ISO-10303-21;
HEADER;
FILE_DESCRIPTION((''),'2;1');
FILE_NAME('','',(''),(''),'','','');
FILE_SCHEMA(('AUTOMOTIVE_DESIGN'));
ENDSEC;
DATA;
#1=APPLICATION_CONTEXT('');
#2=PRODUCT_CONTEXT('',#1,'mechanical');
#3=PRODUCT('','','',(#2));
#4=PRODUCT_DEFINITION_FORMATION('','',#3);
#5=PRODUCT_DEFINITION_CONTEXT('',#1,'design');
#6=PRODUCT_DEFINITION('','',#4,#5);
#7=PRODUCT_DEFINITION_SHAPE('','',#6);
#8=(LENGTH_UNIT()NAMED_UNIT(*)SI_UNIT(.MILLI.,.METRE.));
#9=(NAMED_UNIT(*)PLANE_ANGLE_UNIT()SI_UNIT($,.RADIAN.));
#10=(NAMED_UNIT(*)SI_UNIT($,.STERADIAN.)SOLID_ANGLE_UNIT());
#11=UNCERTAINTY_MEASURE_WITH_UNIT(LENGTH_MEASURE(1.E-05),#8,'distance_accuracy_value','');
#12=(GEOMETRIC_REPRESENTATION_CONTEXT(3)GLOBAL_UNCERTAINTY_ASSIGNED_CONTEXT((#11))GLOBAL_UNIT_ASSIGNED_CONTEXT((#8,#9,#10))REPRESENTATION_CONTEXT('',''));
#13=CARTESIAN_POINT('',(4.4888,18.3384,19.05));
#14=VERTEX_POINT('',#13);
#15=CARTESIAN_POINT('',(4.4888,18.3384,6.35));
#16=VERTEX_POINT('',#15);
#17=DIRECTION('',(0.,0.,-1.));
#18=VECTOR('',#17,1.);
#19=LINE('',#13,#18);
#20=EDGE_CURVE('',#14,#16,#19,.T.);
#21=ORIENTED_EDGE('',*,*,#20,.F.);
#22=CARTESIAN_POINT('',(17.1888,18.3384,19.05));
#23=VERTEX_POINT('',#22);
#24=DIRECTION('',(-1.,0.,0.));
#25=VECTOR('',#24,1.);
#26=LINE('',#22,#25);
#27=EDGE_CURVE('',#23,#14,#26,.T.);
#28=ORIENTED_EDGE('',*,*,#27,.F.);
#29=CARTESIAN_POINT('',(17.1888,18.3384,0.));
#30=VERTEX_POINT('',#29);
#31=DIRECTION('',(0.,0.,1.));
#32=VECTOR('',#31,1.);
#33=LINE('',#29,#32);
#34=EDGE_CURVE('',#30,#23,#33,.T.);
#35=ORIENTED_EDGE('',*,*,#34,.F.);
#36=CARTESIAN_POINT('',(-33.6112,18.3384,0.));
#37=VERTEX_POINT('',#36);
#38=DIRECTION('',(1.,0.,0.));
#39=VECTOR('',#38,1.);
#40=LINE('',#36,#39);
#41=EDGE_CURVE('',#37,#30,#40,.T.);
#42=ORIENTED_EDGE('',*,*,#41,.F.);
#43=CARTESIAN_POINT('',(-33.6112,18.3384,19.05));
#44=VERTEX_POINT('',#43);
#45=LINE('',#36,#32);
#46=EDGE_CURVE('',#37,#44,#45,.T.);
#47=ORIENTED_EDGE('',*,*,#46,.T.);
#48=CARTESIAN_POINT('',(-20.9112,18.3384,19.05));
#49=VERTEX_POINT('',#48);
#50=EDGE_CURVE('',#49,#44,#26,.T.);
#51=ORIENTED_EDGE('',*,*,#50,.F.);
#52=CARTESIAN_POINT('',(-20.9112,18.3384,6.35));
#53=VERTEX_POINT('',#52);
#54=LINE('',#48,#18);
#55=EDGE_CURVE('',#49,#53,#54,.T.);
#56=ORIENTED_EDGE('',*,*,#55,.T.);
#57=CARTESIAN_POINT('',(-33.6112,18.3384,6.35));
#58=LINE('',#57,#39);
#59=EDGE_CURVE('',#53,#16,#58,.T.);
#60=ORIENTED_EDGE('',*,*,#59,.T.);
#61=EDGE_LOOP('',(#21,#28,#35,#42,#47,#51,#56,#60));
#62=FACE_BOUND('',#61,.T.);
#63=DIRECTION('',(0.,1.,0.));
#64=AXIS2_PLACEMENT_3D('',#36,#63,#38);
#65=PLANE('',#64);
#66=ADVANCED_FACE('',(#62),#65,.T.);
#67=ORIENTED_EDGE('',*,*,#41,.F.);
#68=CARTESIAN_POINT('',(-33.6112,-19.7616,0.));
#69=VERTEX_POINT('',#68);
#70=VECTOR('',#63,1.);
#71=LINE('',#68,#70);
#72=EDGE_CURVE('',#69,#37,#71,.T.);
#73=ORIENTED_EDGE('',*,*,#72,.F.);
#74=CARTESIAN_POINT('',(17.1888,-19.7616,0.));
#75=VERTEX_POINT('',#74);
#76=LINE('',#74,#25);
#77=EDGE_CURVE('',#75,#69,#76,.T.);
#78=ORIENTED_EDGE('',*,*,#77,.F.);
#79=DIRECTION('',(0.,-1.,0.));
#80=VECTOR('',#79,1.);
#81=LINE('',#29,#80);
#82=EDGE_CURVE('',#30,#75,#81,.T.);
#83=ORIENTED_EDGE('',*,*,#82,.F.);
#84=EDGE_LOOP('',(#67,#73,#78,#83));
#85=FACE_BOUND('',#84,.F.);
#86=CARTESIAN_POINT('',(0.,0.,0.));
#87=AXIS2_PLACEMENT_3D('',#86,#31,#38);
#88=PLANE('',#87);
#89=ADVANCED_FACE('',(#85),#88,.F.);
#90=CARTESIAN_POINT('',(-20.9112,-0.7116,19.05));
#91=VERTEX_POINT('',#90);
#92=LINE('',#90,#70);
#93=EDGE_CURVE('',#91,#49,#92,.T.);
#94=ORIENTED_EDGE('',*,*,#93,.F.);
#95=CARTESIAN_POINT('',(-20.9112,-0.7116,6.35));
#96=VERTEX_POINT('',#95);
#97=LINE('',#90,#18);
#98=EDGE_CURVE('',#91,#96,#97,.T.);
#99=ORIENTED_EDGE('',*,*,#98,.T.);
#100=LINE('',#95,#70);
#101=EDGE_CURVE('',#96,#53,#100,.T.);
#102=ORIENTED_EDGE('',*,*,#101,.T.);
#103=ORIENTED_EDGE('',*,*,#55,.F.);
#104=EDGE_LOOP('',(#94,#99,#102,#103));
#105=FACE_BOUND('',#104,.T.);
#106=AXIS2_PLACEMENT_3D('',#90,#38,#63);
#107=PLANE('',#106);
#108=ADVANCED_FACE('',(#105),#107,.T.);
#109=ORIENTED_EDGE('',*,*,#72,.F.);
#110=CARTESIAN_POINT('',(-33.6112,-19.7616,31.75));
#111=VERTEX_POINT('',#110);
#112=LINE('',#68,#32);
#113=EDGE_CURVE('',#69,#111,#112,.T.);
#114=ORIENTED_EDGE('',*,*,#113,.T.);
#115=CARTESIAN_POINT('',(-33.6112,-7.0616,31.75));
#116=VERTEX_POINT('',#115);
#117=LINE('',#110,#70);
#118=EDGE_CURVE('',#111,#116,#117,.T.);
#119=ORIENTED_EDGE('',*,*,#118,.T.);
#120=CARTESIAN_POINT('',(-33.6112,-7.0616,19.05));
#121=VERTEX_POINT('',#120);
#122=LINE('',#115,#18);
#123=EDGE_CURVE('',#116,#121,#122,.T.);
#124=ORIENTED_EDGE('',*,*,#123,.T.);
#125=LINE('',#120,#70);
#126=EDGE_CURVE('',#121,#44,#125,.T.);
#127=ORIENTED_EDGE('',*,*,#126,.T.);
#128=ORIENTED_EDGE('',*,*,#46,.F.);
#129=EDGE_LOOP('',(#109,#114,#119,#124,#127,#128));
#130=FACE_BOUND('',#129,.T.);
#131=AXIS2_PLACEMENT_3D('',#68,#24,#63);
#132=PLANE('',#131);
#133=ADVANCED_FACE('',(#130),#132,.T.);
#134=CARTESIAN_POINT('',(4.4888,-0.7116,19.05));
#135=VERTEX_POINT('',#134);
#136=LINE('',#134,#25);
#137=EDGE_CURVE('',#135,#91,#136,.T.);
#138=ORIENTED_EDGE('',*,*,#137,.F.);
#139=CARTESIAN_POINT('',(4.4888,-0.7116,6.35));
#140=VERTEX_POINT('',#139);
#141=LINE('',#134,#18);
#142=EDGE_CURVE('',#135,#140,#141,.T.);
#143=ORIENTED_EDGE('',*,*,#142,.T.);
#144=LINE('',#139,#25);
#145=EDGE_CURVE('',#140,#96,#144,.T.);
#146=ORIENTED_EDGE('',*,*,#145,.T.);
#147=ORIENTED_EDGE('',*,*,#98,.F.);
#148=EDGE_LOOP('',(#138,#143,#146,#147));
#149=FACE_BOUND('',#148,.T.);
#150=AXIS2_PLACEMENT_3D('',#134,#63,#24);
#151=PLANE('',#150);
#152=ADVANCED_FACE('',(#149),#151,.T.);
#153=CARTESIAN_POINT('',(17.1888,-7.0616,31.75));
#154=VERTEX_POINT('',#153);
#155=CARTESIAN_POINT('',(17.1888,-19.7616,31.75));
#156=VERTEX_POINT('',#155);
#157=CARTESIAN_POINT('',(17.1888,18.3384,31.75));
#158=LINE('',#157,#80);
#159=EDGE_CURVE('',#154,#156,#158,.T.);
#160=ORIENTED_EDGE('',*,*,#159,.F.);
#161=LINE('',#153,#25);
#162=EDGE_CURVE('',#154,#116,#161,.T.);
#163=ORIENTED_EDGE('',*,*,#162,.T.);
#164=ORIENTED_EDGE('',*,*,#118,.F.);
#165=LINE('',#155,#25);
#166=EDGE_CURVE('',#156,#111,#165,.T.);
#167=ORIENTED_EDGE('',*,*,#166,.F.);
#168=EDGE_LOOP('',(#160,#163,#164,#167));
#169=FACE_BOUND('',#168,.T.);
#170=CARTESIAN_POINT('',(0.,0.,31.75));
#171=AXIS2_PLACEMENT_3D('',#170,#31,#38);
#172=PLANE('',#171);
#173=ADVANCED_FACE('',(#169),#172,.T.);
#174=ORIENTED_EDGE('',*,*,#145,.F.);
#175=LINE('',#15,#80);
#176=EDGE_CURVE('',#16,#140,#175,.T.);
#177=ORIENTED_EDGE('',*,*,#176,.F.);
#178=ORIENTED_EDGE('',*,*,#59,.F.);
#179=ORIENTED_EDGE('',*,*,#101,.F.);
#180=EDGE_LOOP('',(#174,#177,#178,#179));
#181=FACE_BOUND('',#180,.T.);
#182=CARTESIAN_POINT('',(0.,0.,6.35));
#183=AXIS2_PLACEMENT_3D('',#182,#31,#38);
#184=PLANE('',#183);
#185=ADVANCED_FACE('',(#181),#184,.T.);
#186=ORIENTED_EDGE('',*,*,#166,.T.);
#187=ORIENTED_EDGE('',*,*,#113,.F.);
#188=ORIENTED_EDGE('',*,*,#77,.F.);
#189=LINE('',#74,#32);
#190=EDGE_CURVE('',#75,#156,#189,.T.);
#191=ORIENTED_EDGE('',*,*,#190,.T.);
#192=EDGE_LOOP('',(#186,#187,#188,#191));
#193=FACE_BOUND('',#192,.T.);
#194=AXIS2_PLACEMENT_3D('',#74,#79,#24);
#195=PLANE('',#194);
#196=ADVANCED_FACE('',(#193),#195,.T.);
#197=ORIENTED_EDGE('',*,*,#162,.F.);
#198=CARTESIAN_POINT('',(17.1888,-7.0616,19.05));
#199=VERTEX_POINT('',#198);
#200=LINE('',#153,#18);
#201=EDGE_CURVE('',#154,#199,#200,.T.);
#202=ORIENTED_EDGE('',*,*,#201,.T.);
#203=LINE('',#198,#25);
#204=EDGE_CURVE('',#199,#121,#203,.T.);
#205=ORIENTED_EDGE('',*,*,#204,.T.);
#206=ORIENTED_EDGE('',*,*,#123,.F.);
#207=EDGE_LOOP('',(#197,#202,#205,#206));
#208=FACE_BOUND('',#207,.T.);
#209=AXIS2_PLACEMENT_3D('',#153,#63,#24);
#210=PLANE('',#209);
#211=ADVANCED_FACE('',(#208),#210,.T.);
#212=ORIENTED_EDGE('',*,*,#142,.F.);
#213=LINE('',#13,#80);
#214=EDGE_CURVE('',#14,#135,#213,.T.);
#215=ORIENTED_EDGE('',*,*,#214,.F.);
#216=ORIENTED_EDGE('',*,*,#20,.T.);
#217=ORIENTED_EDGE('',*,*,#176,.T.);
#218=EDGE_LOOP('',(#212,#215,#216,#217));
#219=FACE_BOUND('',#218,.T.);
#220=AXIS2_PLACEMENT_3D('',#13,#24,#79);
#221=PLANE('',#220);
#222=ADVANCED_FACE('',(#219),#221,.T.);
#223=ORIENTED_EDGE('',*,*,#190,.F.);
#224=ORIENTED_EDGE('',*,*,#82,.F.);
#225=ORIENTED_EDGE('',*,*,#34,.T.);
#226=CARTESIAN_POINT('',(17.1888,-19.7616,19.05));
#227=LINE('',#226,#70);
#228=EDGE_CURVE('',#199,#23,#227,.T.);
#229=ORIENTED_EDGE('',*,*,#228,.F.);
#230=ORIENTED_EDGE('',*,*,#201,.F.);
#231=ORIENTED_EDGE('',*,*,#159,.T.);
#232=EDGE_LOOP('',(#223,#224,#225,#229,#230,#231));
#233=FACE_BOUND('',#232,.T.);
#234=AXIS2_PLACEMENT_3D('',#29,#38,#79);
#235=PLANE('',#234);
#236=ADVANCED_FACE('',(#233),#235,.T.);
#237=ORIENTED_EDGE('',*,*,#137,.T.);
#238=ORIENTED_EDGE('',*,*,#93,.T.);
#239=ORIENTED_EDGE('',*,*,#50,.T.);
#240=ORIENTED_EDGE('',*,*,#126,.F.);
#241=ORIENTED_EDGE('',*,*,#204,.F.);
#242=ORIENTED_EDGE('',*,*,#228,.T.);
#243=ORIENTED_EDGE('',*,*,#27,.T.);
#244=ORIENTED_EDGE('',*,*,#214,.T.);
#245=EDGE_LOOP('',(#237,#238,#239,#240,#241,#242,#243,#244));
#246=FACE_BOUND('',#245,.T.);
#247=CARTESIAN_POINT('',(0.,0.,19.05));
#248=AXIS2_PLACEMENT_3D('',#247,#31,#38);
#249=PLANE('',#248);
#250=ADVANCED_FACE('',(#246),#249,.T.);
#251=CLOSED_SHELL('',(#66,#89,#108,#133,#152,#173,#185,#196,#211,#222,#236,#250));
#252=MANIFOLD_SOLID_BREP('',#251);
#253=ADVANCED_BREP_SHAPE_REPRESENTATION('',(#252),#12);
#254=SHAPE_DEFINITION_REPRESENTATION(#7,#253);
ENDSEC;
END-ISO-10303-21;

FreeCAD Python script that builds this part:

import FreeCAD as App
import Part
import Sketcher
Q = App.Units.Quantity


def add_polygon(sketch, points):
    """Adds a closed chain of lines whose ends are joined by coincident constraints."""
    first, n = sketch.GeometryCount, len(points)
    for a, b in zip(points, points[1:] + points[:1]):
        sketch.addGeometry(Part.LineSegment(App.Vector(*a, 0), App.Vector(*b, 0)), False)
    for i in range(n):
        sketch.addConstraint(Sketcher.Constraint("Coincident", first + i, 2, first + (i + 1) % n, 1))

doc = App.newDocument("Part")
body = doc.addObject("PartDesign::Body", "Body")

# Sketch on XY plane
sketch1 = body.newObject("Sketcher::SketchObject", "Sketch")
sketch1.AttachmentSupport = (doc.getObject("XY_Plane"), [""])
sketch1.MapMode = "FlatFace"
add_polygon(sketch1, [(17, 18), (-34, 18), (-34, -20), (17, -20)])  # lines 0-3
sketch1.addConstraint([
    Sketcher.Constraint("Horizontal", 0),
    Sketcher.Constraint("Vertical", 1),
    Sketcher.Constraint("Horizontal", 2),
    Sketcher.Constraint("Vertical", 3),
    Sketcher.Constraint("DistanceX", 0, 2, 0, 1, Q("2 in")),
    Sketcher.Constraint("DistanceY", 1, 2, 1, 1, Q("1.5 in")),
    Sketcher.Constraint("DistanceX", 0, 2, -1, 1, 33.6112),
    Sketcher.Constraint("DistanceY", -1, 1, 0, 2, 18.3384),
])
pad1 = body.newObject("PartDesign::Pad", "Pad")
pad1.Profile = sketch1
pad1.Length = Q("1.25 in")

# Sketch on XY plane
sketch2 = body.newObject("Sketcher::SketchObject", "Sketch001")
sketch2.AttachmentSupport = (doc.getObject("XY_Plane"), [""])
sketch2.MapMode = "FlatFace"
sketch2.AttachmentOffset = App.Placement(App.Vector(0, 0, 1.25 * 25.4), App.Rotation())
add_polygon(sketch2, [(17, -7), (17, 18), (-34, 18), (-34, -7)])  # lines 0-3
sketch2.addConstraint([
    Sketcher.Constraint("Vertical", 0),
    Sketcher.Constraint("Horizontal", 1),
    Sketcher.Constraint("Vertical", 2),
    Sketcher.Constraint("Horizontal", 3),
    Sketcher.Constraint("DistanceX", 1, 2, 1, 1, Q("2 in")),
    Sketcher.Constraint("DistanceY", 0, 1, 0, 2, Q("1 in")),
    Sketcher.Constraint("DistanceX", -1, 1, 0, 2, 17.1888),
    Sketcher.Constraint("DistanceY", -1, 1, 0, 2, 18.3384),
])
pocket1 = body.newObject("PartDesign::Pocket", "Pocket")
pocket1.Profile = sketch2
pocket1.Length = Q("0.5 in")

# Sketch on XY plane
sketch3 = body.newObject("Sketcher::SketchObject", "Sketch002")
sketch3.AttachmentSupport = (doc.getObject("XY_Plane"), [""])
sketch3.MapMode = "FlatFace"
sketch3.AttachmentOffset = App.Placement(App.Vector(0, 0, 0.75 * 25.4), App.Rotation())
add_polygon(sketch3, [(4, 18), (-21, 18), (-21, -1), (4, -1)])  # lines 0-3
sketch3.addConstraint([
    Sketcher.Constraint("Horizontal", 0),
    Sketcher.Constraint("Vertical", 1),
    Sketcher.Constraint("Horizontal", 2),
    Sketcher.Constraint("Vertical", 3),
    Sketcher.Constraint("DistanceX", 0, 2, 0, 1, Q("1 in")),
    Sketcher.Constraint("DistanceY", 1, 2, 1, 1, Q("0.75 in")),
    Sketcher.Constraint("DistanceX", 0, 2, -1, 1, 20.9112),
    Sketcher.Constraint("DistanceY", -1, 1, 0, 2, 18.3384),
])
pocket2 = body.newObject("PartDesign::Pocket", "Pocket001")
pocket2.Profile = sketch3
pocket2.Length = Q("0.5 in")

doc.recompute()
